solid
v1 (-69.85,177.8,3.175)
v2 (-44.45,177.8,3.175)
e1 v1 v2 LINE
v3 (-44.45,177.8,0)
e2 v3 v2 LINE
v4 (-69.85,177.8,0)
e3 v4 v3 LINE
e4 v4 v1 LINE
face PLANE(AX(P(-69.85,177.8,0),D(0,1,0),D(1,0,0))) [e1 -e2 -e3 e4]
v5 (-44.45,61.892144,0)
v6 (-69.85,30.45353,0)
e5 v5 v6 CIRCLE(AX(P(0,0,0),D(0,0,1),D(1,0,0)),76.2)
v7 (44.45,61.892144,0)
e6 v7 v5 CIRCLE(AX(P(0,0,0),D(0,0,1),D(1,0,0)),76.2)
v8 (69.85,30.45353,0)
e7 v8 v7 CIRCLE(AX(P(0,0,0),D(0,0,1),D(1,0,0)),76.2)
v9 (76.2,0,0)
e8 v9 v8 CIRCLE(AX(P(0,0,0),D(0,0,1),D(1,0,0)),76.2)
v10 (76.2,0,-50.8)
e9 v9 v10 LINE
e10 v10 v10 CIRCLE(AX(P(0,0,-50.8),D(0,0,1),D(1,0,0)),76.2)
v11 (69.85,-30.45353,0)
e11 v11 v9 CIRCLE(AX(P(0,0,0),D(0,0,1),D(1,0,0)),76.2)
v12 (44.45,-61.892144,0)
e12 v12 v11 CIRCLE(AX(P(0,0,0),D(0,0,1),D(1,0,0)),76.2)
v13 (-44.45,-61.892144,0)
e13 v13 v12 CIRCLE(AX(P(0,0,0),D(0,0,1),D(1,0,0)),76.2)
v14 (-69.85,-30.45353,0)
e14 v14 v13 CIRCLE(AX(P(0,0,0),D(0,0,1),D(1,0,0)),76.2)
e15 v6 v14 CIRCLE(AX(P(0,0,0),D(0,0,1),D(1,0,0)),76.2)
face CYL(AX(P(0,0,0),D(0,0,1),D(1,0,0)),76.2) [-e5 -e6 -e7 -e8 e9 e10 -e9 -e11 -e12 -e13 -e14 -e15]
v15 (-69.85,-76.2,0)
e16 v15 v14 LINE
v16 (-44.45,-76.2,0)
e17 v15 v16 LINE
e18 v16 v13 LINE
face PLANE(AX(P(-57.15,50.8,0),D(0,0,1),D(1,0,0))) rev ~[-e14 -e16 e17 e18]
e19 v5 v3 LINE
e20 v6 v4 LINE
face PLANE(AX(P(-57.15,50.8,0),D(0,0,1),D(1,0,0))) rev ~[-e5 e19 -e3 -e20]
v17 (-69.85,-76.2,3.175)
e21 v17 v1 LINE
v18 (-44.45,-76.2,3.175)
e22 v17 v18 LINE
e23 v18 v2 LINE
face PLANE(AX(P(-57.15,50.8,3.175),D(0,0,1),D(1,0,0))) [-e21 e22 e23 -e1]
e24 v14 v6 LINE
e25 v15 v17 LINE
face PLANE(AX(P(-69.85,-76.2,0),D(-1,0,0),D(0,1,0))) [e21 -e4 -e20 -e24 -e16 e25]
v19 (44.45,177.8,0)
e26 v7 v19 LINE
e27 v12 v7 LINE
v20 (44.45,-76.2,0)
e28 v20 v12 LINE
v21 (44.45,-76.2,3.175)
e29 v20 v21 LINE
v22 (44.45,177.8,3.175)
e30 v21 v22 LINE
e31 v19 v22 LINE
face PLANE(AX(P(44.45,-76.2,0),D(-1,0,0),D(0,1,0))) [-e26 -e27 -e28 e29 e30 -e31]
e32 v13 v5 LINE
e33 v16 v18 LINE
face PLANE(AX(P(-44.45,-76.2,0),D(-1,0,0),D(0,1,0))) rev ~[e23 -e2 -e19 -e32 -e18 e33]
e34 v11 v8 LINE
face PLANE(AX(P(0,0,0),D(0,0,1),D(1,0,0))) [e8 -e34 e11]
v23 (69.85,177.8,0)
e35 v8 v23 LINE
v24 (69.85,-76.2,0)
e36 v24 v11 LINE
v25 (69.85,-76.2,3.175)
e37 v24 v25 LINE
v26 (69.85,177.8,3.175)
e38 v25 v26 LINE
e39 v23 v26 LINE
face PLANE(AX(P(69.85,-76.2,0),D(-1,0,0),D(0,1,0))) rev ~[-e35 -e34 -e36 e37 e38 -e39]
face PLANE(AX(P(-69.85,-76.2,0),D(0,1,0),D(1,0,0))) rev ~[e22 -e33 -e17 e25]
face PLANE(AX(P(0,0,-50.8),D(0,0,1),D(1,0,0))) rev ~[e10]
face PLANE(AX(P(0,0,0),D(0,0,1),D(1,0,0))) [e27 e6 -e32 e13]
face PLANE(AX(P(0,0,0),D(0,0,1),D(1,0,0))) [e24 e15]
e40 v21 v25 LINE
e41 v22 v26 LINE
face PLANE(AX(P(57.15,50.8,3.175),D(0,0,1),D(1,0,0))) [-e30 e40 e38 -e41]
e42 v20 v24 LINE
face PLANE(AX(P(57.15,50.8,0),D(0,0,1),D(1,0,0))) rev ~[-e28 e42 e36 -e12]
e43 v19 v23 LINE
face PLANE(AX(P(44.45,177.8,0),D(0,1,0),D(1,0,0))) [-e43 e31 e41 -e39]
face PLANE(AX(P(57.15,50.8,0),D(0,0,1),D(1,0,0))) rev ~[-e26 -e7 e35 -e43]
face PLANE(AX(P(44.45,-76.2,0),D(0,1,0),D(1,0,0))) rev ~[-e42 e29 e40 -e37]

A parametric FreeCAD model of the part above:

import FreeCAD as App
import Part
import Sketcher

V = App.Vector
Q = App.Units.Quantity


def add_polygon(sketch, points):
    """Adds a closed chain of lines whose ends are joined by coincident constraints."""
    first, n = sketch.GeometryCount, len(points)
    for a, b in zip(points, points[1:] + points[:1]):
        sketch.addGeometry(Part.LineSegment(App.Vector(*a, 0), App.Vector(*b, 0)), False)
    for i in range(n):
        sketch.addConstraint(Sketcher.Constraint("Coincident", first + i, 2, first + (i + 1) % n, 1))

doc = App.newDocument("Part")
body = doc.addObject("PartDesign::Body", "Body")

# Sketch on XY plane
sketch1 = body.newObject("Sketcher::SketchObject", "Sketch")
sketch1.AttachmentSupport = (doc.getObject("XY_Plane"), [""])
sketch1.MapMode = "FlatFace"
sketch1.addGeometry(Part.Circle(V(0, 0, 0), V(0, 0, 1), 76.2), False)
sketch1.addConstraint([
    Sketcher.Constraint("Coincident", 0, 3, -1, 1),
    Sketcher.Constraint("Diameter", 0, Q("6 in")),
])
pad1 = body.newObject("PartDesign::Pad", "Pad")
pad1.Profile = sketch1
pad1.Length = Q("2 in")
pad1.Reversed = True

# Sketch on XY plane
sketch2 = body.newObject("Sketcher::SketchObject", "Sketch001")
sketch2.AttachmentSupport = (doc.getObject("XY_Plane"), [""])
sketch2.MapMode = "FlatFace"
add_polygon(sketch2, [(-69.85, 177.8), (-69.85, -76.2), (-44.45, -76.2), (-44.45, 177.8)])  # lines 0-3
add_polygon(sketch2, [(44.45, 177.8), (44.45, -76.2), (69.85, -76.2), (69.85, 177.8)])  # lines 4-7
sketch2.addConstraint([
    Sketcher.Constraint("Vertical", 0),
    Sketcher.Constraint("Horizontal", 1),
    Sketcher.Constraint("Vertical", 2),
    Sketcher.Constraint("Horizontal", 3),
    Sketcher.Constraint("Vertical", 4),
    Sketcher.Constraint("Horizontal", 5),
    Sketcher.Constraint("Vertical", 6),
    Sketcher.Constraint("Horizontal", 7),
    Sketcher.Constraint("Symmetric", 1, 2, 4, 2, -2),
    Sketcher.Constraint("Symmetric", 3, 2, 6, 2, -2),
    Sketcher.Constraint("DistanceX", 1, 1, 1, 2, Q("1 in")),
    Sketcher.Constraint("DistanceY", 0, 2, 0, 1, Q("10 in")),
    Sketcher.Constraint("DistanceY", 0, 2, -1, 1, Q("3 in")),
    Sketcher.Constraint("DistanceX", 1, 2, 4, 2, Q("3.5 in")),
])
pad2 = body.newObject("PartDesign::Pad", "Pad001")
pad2.Profile = sketch2
pad2.Length = Q("0.125 in")

doc.recompute()
